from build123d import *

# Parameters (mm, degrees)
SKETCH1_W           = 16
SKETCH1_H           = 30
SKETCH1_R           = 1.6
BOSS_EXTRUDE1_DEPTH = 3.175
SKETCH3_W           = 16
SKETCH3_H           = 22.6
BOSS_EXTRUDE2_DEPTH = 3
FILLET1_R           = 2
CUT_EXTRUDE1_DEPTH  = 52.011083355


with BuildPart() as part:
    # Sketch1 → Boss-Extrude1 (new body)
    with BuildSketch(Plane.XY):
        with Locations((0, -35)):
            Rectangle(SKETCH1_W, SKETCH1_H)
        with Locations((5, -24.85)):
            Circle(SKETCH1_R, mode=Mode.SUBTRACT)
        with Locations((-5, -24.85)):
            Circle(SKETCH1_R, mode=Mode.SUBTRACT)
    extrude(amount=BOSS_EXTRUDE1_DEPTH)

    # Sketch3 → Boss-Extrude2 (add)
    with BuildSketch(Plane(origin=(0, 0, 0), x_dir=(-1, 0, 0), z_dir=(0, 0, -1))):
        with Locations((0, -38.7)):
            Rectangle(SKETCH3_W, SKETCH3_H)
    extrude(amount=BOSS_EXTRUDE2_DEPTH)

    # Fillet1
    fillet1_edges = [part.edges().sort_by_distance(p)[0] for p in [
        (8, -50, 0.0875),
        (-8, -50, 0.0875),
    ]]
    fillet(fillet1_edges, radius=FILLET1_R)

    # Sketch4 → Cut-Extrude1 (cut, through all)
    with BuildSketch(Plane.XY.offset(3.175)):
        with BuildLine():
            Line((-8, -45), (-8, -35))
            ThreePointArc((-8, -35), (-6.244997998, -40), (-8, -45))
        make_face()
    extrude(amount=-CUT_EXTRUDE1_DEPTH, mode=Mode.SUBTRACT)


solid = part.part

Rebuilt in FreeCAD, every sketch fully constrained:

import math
import FreeCAD as App
import Part
import Sketcher


def edges_at(feature, points):
    """Names of the edges that pass closest to the given points."""
    edges = feature.Shape.Edges
    near = lambda p: min(range(len(edges)), key=lambda i: edges[i].distToShape(Part.Vertex(*p))[0])
    return sorted({f"Edge{near(p) + 1}" for p in points})


def add_polygon(sketch, points):
    """Adds a closed chain of lines whose ends are joined by coincident constraints."""
    first, n = sketch.GeometryCount, len(points)
    for a, b in zip(points, points[1:] + points[:1]):
        sketch.addGeometry(Part.LineSegment(App.Vector(*a, 0), App.Vector(*b, 0)), False)
    for i in range(n):
        sketch.addConstraint(Sketcher.Constraint("Coincident", first + i, 2, first + (i + 1) % n, 1))

doc = App.newDocument("Part")
body = doc.addObject("PartDesign::Body", "Body")

# Sketch on XY plane
sketch1 = doc.addObject("Sketcher::SketchObject", "Sketch")
body.addObject(sketch1)
sketch1.AttachmentSupport = (doc.XY_Plane, [""])
sketch1.MapMode = "FlatFace"
add_polygon(sketch1, [(-8, -20), (-8, -50), (8, -50), (8, -20)])  # lines 0-3
sketch1.addGeometry(Part.Circle(App.Vector(-5, -24.85, 0), App.Vector(0, 0, 1), 1.6), False)  # 4
sketch1.addGeometry(Part.Circle(App.Vector(5, -24.85, 0), App.Vector(0, 0, 1), 1.6), False)  # 5
sketch1.addConstraint([
    Sketcher.Constraint("Vertical", 0),
    Sketcher.Constraint("Horizontal", 1),
    Sketcher.Constraint("Vertical", 2),
    Sketcher.Constraint("Horizontal", 3),
    Sketcher.Constraint("Equal", 4, 5),
    Sketcher.Constraint("Symmetric", 4, 3, 5, 3, -2),
    Sketcher.Constraint("Diameter", 4, 3.2),
    Sketcher.Constraint("DistanceX", 1, 1, 1, 2, 16.0),
    Sketcher.Constraint("DistanceY", 0, 2, 0, 1, 30.0),
    Sketcher.Constraint("DistanceX", 4, 3, -1, 1, 5.0),
    Sketcher.Constraint("DistanceX", 0, 2, -1, 1, 8.0),
    Sketcher.Constraint("DistanceY", 0, 2, -1, 1, 50.0),
    Sketcher.Constraint("DistanceY", 4, 3, -1, 1, 24.85),
])
pad1 = doc.addObject("PartDesign::Pad", "Pad")
body.addObject(pad1)
pad1.Profile = sketch1
pad1.Length = 3.175

# Sketch on XY plane
sketch2 = doc.addObject("Sketcher::SketchObject", "Sketch001")
body.addObject(sketch2)
sketch2.AttachmentSupport = (doc.XY_Plane, [""])
sketch2.MapMode = "FlatFace"
add_polygon(sketch2, [(8, -27.4), (8, -50), (-8, -50), (-8, -27.4)])  # lines 0-3
sketch2.addConstraint([
    Sketcher.Constraint("Vertical", 0),
    Sketcher.Constraint("Horizontal", 1),
    Sketcher.Constraint("Vertical", 2),
    Sketcher.Constraint("Horizontal", 3),
    Sketcher.Constraint("DistanceX", 1, 2, 1, 1, 16.0),
    Sketcher.Constraint("DistanceY", 0, 2, 0, 1, 22.6),
    Sketcher.Constraint("DistanceX", -1, 1, 0, 2, 8.0),
    Sketcher.Constraint("DistanceY", 0, 2, -1, 1, 50.0),
])
pad2 = doc.addObject("PartDesign::Pad", "Pad001")
body.addObject(pad2)
pad2.Profile = sketch2
pad2.Length = 3
pad2.Reversed = True
doc.recompute()

fillet = doc.addObject("PartDesign::Fillet", "Fillet")
body.addObject(fillet)
fillet.Base = (pad2, edges_at(pad2, [(8, -50, 0.087), (-8, -50, 0.087)]))
fillet.Radius = 2

# Sketch on XY plane
sketch3 = doc.addObject("Sketcher::SketchObject", "Sketch002")
body.addObject(sketch3)
sketch3.AttachmentSupport = (doc.XY_Plane, [""])
sketch3.MapMode = "FlatFace"
sketch3.AttachmentOffset = App.Placement(App.Vector(0, 0, 3.175), App.Rotation())
sketch3.addGeometry([
    Part.LineSegment(App.Vector(-8, -35, 0), App.Vector(-8, -45, 0)),
    Part.ArcOfCircle(Part.Circle(App.Vector(-14.244998, -40, 0), App.Vector(0, 0, 1), 8), math.radians(-38.682187), math.radians(38.682187)),
], False)
sketch3.addConstraint([
    Sketcher.Constraint("Coincident", 0, 1, 1, 2),
    Sketcher.Constraint("Coincident", 1, 1, 0, 2),
    Sketcher.Constraint("Vertical", 0),
    Sketcher.Constraint("Radius", 1, 8.0),
    Sketcher.Constraint("DistanceY", 0, 2, 0, 1, 10.0),
    Sketcher.Constraint("DistanceY", 1, 3, -1, 1, 40.0),
    Sketcher.Constraint("DistanceX", 0, 1, -1, 1, 8.0),
])
pocket1 = doc.addObject("PartDesign::Pocket", "Pocket")
body.addObject(pocket1)
pocket1.Profile = sketch3
pocket1.Type = "ThroughAll"

doc.recompute()
